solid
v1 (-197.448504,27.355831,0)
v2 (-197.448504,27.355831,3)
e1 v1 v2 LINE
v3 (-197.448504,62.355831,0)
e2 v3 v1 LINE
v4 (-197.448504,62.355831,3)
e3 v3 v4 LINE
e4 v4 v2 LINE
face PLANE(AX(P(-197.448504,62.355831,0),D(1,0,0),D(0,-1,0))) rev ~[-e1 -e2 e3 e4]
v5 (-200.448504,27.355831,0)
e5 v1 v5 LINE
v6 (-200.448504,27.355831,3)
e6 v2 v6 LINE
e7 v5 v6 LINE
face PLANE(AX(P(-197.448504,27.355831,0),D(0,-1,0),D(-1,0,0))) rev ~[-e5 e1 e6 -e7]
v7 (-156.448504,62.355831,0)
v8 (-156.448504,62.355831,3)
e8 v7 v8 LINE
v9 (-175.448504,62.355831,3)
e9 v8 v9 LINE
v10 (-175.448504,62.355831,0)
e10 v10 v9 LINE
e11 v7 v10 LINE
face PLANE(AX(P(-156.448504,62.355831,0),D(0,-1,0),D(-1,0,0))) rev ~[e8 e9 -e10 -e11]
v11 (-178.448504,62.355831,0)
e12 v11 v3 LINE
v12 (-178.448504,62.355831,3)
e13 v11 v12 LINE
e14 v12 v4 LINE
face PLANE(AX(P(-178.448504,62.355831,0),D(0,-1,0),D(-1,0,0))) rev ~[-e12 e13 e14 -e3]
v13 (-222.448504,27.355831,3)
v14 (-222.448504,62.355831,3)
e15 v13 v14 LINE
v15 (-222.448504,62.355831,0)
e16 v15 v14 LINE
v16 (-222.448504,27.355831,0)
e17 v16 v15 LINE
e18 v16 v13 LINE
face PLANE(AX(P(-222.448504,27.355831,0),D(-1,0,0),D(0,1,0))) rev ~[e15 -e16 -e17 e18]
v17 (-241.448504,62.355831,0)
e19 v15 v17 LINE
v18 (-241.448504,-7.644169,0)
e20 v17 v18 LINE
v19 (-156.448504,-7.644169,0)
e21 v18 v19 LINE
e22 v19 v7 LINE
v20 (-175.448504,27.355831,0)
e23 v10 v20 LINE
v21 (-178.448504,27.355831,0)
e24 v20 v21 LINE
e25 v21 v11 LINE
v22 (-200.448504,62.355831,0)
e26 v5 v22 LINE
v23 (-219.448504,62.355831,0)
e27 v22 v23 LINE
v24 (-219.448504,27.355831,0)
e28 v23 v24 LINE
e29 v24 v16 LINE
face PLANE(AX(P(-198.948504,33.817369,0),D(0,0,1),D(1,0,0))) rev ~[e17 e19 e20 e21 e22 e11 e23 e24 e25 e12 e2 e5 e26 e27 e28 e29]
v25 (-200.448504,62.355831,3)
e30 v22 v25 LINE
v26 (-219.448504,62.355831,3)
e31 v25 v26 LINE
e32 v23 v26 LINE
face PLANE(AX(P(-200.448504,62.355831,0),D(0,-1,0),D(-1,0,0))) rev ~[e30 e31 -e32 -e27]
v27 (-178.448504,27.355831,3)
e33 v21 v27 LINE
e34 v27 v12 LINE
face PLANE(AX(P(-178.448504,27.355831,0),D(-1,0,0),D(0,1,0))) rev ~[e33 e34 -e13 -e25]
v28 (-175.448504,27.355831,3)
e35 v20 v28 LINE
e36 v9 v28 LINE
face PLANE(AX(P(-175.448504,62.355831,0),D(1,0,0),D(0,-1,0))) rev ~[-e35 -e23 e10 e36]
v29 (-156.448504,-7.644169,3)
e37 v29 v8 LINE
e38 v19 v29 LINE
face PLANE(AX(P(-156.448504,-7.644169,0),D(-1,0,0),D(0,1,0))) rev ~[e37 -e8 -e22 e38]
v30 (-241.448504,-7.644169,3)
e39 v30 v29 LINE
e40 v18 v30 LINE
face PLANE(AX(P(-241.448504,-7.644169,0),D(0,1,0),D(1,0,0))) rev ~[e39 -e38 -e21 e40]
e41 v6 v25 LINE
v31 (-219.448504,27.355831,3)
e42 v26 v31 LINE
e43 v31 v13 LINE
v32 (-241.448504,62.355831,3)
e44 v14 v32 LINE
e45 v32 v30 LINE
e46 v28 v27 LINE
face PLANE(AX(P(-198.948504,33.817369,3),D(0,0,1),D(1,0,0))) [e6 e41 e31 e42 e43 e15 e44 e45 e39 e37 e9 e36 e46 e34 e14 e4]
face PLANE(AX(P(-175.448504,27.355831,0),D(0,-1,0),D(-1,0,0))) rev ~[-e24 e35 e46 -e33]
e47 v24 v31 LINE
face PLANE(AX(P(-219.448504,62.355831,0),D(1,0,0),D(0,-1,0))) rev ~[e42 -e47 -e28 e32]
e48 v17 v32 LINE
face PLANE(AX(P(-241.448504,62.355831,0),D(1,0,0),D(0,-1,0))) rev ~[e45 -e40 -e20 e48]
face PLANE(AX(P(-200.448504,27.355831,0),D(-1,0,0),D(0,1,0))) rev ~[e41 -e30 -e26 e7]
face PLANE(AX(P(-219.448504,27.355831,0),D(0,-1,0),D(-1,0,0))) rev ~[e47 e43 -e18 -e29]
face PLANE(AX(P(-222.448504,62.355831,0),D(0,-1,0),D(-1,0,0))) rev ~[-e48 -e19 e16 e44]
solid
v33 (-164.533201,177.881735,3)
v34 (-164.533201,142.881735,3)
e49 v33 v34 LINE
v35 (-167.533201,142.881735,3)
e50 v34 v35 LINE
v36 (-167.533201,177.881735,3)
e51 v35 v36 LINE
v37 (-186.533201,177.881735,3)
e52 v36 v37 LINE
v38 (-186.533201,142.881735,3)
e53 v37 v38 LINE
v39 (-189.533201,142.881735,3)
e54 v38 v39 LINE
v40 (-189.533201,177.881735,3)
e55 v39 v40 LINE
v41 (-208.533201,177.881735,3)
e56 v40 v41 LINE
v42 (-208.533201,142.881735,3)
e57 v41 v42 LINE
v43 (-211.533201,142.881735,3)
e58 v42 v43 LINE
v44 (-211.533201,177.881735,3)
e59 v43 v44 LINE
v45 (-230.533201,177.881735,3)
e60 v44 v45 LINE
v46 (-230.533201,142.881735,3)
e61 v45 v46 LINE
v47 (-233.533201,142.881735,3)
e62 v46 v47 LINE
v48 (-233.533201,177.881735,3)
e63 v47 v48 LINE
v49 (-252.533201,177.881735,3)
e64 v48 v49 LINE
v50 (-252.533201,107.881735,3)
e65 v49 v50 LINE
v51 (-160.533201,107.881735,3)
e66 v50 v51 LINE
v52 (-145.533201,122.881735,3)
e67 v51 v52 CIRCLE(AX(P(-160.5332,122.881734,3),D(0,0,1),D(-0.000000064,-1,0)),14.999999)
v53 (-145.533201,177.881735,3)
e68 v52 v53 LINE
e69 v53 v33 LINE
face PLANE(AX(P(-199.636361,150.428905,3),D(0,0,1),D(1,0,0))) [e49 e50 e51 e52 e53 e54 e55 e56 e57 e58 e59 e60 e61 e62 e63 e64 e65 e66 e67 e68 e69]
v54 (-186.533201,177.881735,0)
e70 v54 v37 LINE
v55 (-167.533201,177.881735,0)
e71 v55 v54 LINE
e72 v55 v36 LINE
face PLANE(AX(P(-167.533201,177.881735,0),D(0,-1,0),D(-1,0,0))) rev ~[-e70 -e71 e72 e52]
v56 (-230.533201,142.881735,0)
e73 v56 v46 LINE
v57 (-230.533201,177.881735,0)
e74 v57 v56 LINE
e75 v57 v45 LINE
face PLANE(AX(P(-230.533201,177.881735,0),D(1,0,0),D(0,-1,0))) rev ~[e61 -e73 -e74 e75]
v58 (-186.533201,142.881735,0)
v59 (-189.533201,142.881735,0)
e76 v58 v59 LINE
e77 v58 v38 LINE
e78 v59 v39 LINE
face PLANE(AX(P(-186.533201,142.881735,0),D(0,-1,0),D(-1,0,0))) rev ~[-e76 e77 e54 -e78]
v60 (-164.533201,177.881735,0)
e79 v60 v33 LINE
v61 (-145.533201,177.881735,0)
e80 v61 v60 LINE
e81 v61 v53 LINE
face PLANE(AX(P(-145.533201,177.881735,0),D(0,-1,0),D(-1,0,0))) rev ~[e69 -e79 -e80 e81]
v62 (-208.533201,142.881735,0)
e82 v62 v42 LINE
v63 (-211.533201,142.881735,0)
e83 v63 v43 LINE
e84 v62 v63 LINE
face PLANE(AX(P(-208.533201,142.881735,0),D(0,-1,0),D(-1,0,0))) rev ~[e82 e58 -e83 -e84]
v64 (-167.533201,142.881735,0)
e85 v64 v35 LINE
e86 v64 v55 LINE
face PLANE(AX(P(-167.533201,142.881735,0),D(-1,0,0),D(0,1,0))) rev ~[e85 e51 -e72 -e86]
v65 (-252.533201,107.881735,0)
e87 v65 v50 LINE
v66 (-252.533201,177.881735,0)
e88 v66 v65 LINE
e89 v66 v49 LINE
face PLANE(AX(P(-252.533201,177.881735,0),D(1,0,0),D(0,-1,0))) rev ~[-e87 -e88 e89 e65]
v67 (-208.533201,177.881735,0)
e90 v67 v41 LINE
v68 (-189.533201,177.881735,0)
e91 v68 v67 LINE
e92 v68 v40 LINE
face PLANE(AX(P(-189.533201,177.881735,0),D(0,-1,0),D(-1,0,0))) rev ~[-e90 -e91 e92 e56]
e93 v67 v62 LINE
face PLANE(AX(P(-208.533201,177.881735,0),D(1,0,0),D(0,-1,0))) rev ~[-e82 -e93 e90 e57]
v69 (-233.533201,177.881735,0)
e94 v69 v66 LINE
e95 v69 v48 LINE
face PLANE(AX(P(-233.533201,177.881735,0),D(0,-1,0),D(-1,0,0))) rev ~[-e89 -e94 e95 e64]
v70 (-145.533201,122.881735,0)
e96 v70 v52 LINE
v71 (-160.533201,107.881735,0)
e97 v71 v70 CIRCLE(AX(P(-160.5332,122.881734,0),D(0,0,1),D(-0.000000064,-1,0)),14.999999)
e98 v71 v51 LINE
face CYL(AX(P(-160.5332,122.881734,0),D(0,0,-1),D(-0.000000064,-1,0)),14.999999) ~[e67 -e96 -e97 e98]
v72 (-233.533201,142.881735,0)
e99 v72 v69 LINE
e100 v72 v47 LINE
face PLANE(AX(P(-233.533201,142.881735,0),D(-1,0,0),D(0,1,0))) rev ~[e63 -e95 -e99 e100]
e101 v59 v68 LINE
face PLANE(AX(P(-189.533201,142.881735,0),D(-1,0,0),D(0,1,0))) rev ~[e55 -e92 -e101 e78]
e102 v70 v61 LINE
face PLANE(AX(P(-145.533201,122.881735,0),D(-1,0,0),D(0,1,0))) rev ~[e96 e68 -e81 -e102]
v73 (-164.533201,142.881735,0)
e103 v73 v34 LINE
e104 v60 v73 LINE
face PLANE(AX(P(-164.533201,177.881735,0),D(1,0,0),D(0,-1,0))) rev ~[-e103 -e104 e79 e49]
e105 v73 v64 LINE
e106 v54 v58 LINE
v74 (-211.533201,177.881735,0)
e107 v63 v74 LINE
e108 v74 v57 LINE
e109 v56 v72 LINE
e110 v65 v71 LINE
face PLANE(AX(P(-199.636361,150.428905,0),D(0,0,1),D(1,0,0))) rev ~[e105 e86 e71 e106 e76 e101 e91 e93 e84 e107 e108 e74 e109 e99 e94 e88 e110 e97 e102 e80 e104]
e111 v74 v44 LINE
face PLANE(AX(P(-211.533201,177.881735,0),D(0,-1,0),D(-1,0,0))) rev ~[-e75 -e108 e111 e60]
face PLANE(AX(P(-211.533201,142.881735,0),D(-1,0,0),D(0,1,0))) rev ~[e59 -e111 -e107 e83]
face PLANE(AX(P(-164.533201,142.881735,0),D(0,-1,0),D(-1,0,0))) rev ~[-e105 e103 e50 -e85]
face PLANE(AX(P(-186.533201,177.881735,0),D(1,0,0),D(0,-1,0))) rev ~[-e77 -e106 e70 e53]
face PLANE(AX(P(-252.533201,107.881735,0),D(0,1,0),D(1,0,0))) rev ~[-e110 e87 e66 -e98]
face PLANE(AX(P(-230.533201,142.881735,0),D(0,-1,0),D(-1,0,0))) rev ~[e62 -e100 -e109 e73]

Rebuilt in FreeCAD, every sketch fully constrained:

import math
import FreeCAD as App
import Part
import Sketcher

V = App.Vector
Q = App.Units.Quantity

doc = App.newDocument("Part")
body = doc.addObject("PartDesign::Body", "Body")
body.AllowCompound = True

# Sketch on XY plane
sketch1 = body.newObject("Sketcher::SketchObject", "Sketch")
sketch1.AttachmentSupport = (doc.getObject("XY_Plane"), [""])
sketch1.MapMode = "FlatFace"
sketch1.addGeometry([
    Part.LineSegment(V(-233.5, 177.9, 0), V(-252.5, 177.9, 0)),  # 0
    Part.LineSegment(V(-252.5, 177.9, 0), V(-252.5, 107.9, 0)),  # 1
    Part.LineSegment(V(-252.5, 107.9, 0), V(-160.5, 107.9, 0)),  # 2
    Part.ArcOfCircle(Part.Circle(V(-160.5, 122.9, 0), V(0, 0, 1), 15), math.radians(-90), math.radians(0)),  # 3
    Part.LineSegment(V(-145.5, 122.9, 0), V(-145.5, 177.9, 0)),  # 4
    Part.LineSegment(V(-145.5, 177.9, 0), V(-164.5, 177.9, 0)),  # 5
    Part.LineSegment(V(-164.5, 177.9, 0), V(-164.5, 142.9, 0)),  # 6
    Part.LineSegment(V(-164.5, 142.9, 0), V(-167.5, 142.9, 0)),  # 7
    Part.LineSegment(V(-167.5, 142.9, 0), V(-167.5, 177.9, 0)),  # 8
    Part.LineSegment(V(-167.5, 177.9, 0), V(-186.5, 177.9, 0)),  # 9
    Part.LineSegment(V(-186.5, 177.9, 0), V(-186.5, 142.9, 0)),  # 10
    Part.LineSegment(V(-186.5, 142.9, 0), V(-189.5, 142.9, 0)),  # 11
    Part.LineSegment(V(-189.5, 142.9, 0), V(-189.5, 177.9, 0)),  # 12
    Part.LineSegment(V(-189.5, 177.9, 0), V(-208.5, 177.9, 0)),  # 13
    Part.LineSegment(V(-208.5, 177.9, 0), V(-208.5, 142.9, 0)),  # 14
    Part.LineSegment(V(-208.5, 142.9, 0), V(-211.5, 142.9, 0)),  # 15
    Part.LineSegment(V(-211.5, 142.9, 0), V(-211.5, 177.9, 0)),  # 16
    Part.LineSegment(V(-211.5, 177.9, 0), V(-230.5, 177.9, 0)),  # 17
    Part.LineSegment(V(-230.5, 177.9, 0), V(-230.5, 142.9, 0)),  # 18
    Part.LineSegment(V(-230.5, 142.9, 0), V(-233.5, 142.9, 0)),  # 19
    Part.LineSegment(V(-233.5, 142.9, 0), V(-233.5, 177.9, 0)),  # 20
    Part.LineSegment(V(-222.4, 62.4, 0), V(-241.4, 62.4, 0)),  # 21
    Part.LineSegment(V(-241.4, 62.4, 0), V(-241.4, -7.6, 0)),  # 22
    Part.LineSegment(V(-241.4, -7.6, 0), V(-156.4, -7.6, 0)),  # 23
    Part.LineSegment(V(-156.4, -7.6, 0), V(-156.4, 62.4, 0)),  # 24
    Part.LineSegment(V(-156.4, 62.4, 0), V(-175.4, 62.4, 0)),  # 25
    Part.LineSegment(V(-175.4, 62.4, 0), V(-175.4, 27.4, 0)),  # 26
    Part.LineSegment(V(-175.4, 27.4, 0), V(-178.4, 27.4, 0)),  # 27
    Part.LineSegment(V(-178.4, 27.4, 0), V(-178.4, 62.4, 0)),  # 28
    Part.LineSegment(V(-178.4, 62.4, 0), V(-197.4, 62.4, 0)),  # 29
    Part.LineSegment(V(-197.4, 62.4, 0), V(-197.4, 27.4, 0)),  # 30
    Part.LineSegment(V(-197.4, 27.4, 0), V(-200.4, 27.4, 0)),  # 31
    Part.LineSegment(V(-200.4, 27.4, 0), V(-200.4, 62.4, 0)),  # 32
    Part.LineSegment(V(-200.4, 62.4, 0), V(-219.4, 62.4, 0)),  # 33
    Part.LineSegment(V(-219.4, 62.4, 0), V(-219.4, 27.4, 0)),  # 34
    Part.LineSegment(V(-219.4, 27.4, 0), V(-222.4, 27.4, 0)),  # 35
    Part.LineSegment(V(-222.4, 27.4, 0), V(-222.4, 62.4, 0)),  # 36
], False)
sketch1.addConstraint([
    Sketcher.Constraint("Coincident", 0, 2, 1, 1),
    Sketcher.Constraint("Coincident", 1, 2, 2, 1),
    Sketcher.Constraint("Tangent", 2, 2, 3, 1),
    Sketcher.Constraint("Tangent", 3, 2, 4, 1),
    Sketcher.Constraint("Coincident", 4, 2, 5, 1),
    Sketcher.Constraint("Coincident", 5, 2, 6, 1),
    Sketcher.Constraint("Coincident", 6, 2, 7, 1),
    Sketcher.Constraint("Coincident", 7, 2, 8, 1),
    Sketcher.Constraint("Coincident", 8, 2, 9, 1),
    Sketcher.Constraint("Coincident", 9, 2, 10, 1),
    Sketcher.Constraint("Coincident", 10, 2, 11, 1),
    Sketcher.Constraint("Coincident", 11, 2, 12, 1),
    Sketcher.Constraint("Coincident", 12, 2, 13, 1),
    Sketcher.Constraint("Coincident", 13, 2, 14, 1),
    Sketcher.Constraint("Coincident", 14, 2, 15, 1),
    Sketcher.Constraint("Coincident", 15, 2, 16, 1),
    Sketcher.Constraint("Coincident", 16, 2, 17, 1),
    Sketcher.Constraint("Coincident", 17, 2, 18, 1),
    Sketcher.Constraint("Coincident", 18, 2, 19, 1),
    Sketcher.Constraint("Coincident", 19, 2, 20, 1),
    Sketcher.Constraint("Coincident", 20, 2, 0, 1),
    Sketcher.Constraint("Coincident", 21, 2, 22, 1),
    Sketcher.Constraint("Coincident", 22, 2, 23, 1),
    Sketcher.Constraint("Coincident", 23, 2, 24, 1),
    Sketcher.Constraint("Coincident", 24, 2, 25, 1),
    Sketcher.Constraint("Coincident", 25, 2, 26, 1),
    Sketcher.Constraint("Coincident", 26, 2, 27, 1),
    Sketcher.Constraint("Coincident", 27, 2, 28, 1),
    Sketcher.Constraint("Coincident", 28, 2, 29, 1),
    Sketcher.Constraint("Coincident", 29, 2, 30, 1),
    Sketcher.Constraint("Coincident", 30, 2, 31, 1),
    Sketcher.Constraint("Coincident", 31, 2, 32, 1),
    Sketcher.Constraint("Coincident", 32, 2, 33, 1),
    Sketcher.Constraint("Coincident", 33, 2, 34, 1),
    Sketcher.Constraint("Coincident", 34, 2, 35, 1),
    Sketcher.Constraint("Coincident", 35, 2, 36, 1),
    Sketcher.Constraint("Coincident", 36, 2, 21, 1),
    Sketcher.Constraint("Horizontal", 0),
    Sketcher.Constraint("Vertical", 1),
    Sketcher.Constraint("Horizontal", 2),
    Sketcher.Constraint("Vertical", 4),
    Sketcher.Constraint("Horizontal", 5),
    Sketcher.Constraint("Vertical", 6),
    Sketcher.Constraint("Horizontal", 7),
    Sketcher.Constraint("Vertical", 8),
    Sketcher.Constraint("Horizontal", 9),
    Sketcher.Constraint("Vertical", 10),
    Sketcher.Constraint("Horizontal", 11),
    Sketcher.Constraint("Vertical", 12),
    Sketcher.Constraint("Horizontal", 13),
    Sketcher.Constraint("Vertical", 14),
    Sketcher.Constraint("Horizontal", 15),
    Sketcher.Constraint("Vertical", 16),
    Sketcher.Constraint("Horizontal", 17),
    Sketcher.Constraint("Vertical", 18),
    Sketcher.Constraint("Horizontal", 19),
    Sketcher.Constraint("Vertical", 20),
    Sketcher.Constraint("Horizontal", 21),
    Sketcher.Constraint("Vertical", 22),
    Sketcher.Constraint("Horizontal", 23),
    Sketcher.Constraint("Vertical", 24),
    Sketcher.Constraint("Horizontal", 25),
    Sketcher.Constraint("Vertical", 26),
    Sketcher.Constraint("Horizontal", 27),
    Sketcher.Constraint("Vertical", 28),
    Sketcher.Constraint("Horizontal", 29),
    Sketcher.Constraint("Vertical", 30),
    Sketcher.Constraint("Horizontal", 31),
    Sketcher.Constraint("Vertical", 32),
    Sketcher.Constraint("Horizontal", 33),
    Sketcher.Constraint("Vertical", 34),
    Sketcher.Constraint("Horizontal", 35),
    Sketcher.Constraint("Vertical", 36),
    Sketcher.Constraint("Horizontal", 0, 2, 4, 2),
    Sketcher.Constraint("Horizontal", 5, 2, 8, 2),
    Sketcher.Constraint("Horizontal", 7, 2, 10, 2),
    Sketcher.Constraint("Horizontal", 9, 2, 12, 2),
    Sketcher.Constraint("Horizontal", 11, 2, 14, 2),
    Sketcher.Constraint("Horizontal", 13, 2, 16, 2),
    Sketcher.Constraint("Horizontal", 15, 2, 18, 2),
    Sketcher.Constraint("Horizontal", 21, 2, 24, 2),
    Sketcher.Constraint("Horizontal", 25, 2, 28, 2),
    Sketcher.Constraint("Horizontal", 27, 2, 30, 2),
    Sketcher.Constraint("Horizontal", 29, 2, 32, 2),
    Sketcher.Constraint("Horizontal", 31, 2, 34, 2),
    Sketcher.Constraint("Equal", 0, 5),
    Sketcher.Constraint("Equal", 5, 9),
    Sketcher.Constraint("Equal", 7, 11),
    Sketcher.Constraint("Equal", 9, 13),
    Sketcher.Constraint("Equal", 11, 15),
    Sketcher.Constraint("Equal", 13, 17),
    Sketcher.Constraint("Equal", 15, 19),
    Sketcher.Constraint("Equal", 17, 21),
    Sketcher.Constraint("Equal", 21, 25),
    Sketcher.Constraint("Equal", 19, 27),
    Sketcher.Constraint("Equal", 25, 29),
    Sketcher.Constraint("Equal", 27, 31),
    Sketcher.Constraint("Equal", 29, 33),
    Sketcher.Constraint("Equal", 31, 35),
    Sketcher.Constraint("Equal", 1, 22),
    Sketcher.Constraint("Equal", 20, 26),
    Sketcher.Constraint("Radius", 3, Q("14.999999 mm")),
    Sketcher.Constraint("DistanceX", 0, 2, 0, 1, Q("19 mm")),
    Sketcher.Constraint("DistanceX", 2, 1, 2, 2, Q("92 mm")),
    Sketcher.Constraint("DistanceY", 1, 2, 1, 1, Q("70 mm")),
    Sketcher.Constraint("DistanceY", 6, 2, 6, 1, Q("35 mm")),
    Sketcher.Constraint("DistanceX", 3, 3, -1, 1, Q("160.5332 mm")),
    Sketcher.Constraint("DistanceY", -1, 1, 21, 2, Q("62.355831 mm")),
    Sketcher.Constraint("DistanceY", -1, 1, 3, 3, Q("122.881734 mm")),
    Sketcher.Constraint("DistanceX", 21, 2, -1, 1, Q("241.448504 mm")),
])
pad1 = body.newObject("PartDesign::Pad", "Pad")
pad1.Profile = sketch1
pad1.Length = 3

doc.recompute()
